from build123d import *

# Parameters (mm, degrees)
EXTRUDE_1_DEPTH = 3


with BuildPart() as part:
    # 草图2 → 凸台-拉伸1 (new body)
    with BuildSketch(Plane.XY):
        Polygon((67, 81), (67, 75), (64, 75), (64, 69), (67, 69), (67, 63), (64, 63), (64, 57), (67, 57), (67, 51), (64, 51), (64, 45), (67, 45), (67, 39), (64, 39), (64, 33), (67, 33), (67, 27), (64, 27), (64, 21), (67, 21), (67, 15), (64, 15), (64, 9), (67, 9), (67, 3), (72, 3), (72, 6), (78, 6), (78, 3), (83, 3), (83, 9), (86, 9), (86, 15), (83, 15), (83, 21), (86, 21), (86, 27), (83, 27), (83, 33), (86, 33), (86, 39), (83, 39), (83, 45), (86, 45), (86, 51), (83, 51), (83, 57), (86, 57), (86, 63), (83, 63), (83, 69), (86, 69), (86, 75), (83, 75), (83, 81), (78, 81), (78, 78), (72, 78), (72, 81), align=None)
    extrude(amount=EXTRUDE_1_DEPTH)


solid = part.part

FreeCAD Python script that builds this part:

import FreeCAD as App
import Part
import Sketcher

V = App.Vector

doc = App.newDocument("Part")
body = doc.addObject("PartDesign::Body", "Body")

sketch1 = body.newObject("Sketcher::SketchObject", "Sketch")
sketch1.AttachmentSupport = (doc.getObject("XY_Plane"), [""])
sketch1.MapMode = "FlatFace"
sketch1.addGeometry(Part.LineSegment(V(67, 81, 0), V(67, 75, 0)), False)
sketch1.addGeometry(Part.LineSegment(V(67, 75, 0), V(64, 75, 0)), False)
sketch1.addGeometry(Part.LineSegment(V(64, 75, 0), V(64, 69, 0)), False)
sketch1.addGeometry(Part.LineSegment(V(64, 69, 0), V(67, 69, 0)), False)
sketch1.addGeometry(Part.LineSegment(V(67, 69, 0), V(67, 63, 0)), False)
sketch1.addGeometry(Part.LineSegment(V(67, 63, 0), V(64, 63, 0)), False)
sketch1.addGeometry(Part.LineSegment(V(64, 63, 0), V(64, 57, 0)), False)
sketch1.addGeometry(Part.LineSegment(V(64, 57, 0), V(67, 57, 0)), False)
sketch1.addGeometry(Part.LineSegment(V(67, 57, 0), V(67, 51, 0)), False)
sketch1.addGeometry(Part.LineSegment(V(67, 51, 0), V(64, 51, 0)), False)
sketch1.addGeometry(Part.LineSegment(V(64, 51, 0), V(64, 45, 0)), False)
sketch1.addGeometry(Part.LineSegment(V(64, 45, 0), V(67, 45, 0)), False)
sketch1.addGeometry(Part.LineSegment(V(67, 45, 0), V(67, 39, 0)), False)
sketch1.addGeometry(Part.LineSegment(V(67, 39, 0), V(64, 39, 0)), False)
sketch1.addGeometry(Part.LineSegment(V(64, 39, 0), V(64, 33, 0)), False)
sketch1.addGeometry(Part.LineSegment(V(64, 33, 0), V(67, 33, 0)), False)
sketch1.addGeometry(Part.LineSegment(V(67, 33, 0), V(67, 27, 0)), False)
sketch1.addGeometry(Part.LineSegment(V(67, 27, 0), V(64, 27, 0)), False)
sketch1.addGeometry(Part.LineSegment(V(64, 27, 0), V(64, 21, 0)), False)
sketch1.addGeometry(Part.LineSegment(V(64, 21, 0), V(67, 21, 0)), False)
sketch1.addGeometry(Part.LineSegment(V(67, 21, 0), V(67, 15, 0)), False)
sketch1.addGeometry(Part.LineSegment(V(67, 15, 0), V(64, 15, 0)), False)
sketch1.addGeometry(Part.LineSegment(V(64, 15, 0), V(64, 9, 0)), False)
sketch1.addGeometry(Part.LineSegment(V(64, 9, 0), V(67, 9, 0)), False)
sketch1.addGeometry(Part.LineSegment(V(67, 9, 0), V(67, 3, 0)), False)
sketch1.addGeometry(Part.LineSegment(V(67, 3, 0), V(72, 3, 0)), False)
sketch1.addGeometry(Part.LineSegment(V(72, 3, 0), V(72, 6, 0)), False)
sketch1.addGeometry(Part.LineSegment(V(72, 6, 0), V(78, 6, 0)), False)
sketch1.addGeometry(Part.LineSegment(V(78, 6, 0), V(78, 3, 0)), False)
sketch1.addGeometry(Part.LineSegment(V(78, 3, 0), V(83, 3, 0)), False)
sketch1.addGeometry(Part.LineSegment(V(83, 3, 0), V(83, 9, 0)), False)
sketch1.addGeometry(Part.LineSegment(V(83, 9, 0), V(86, 9, 0)), False)
sketch1.addGeometry(Part.LineSegment(V(86, 9, 0), V(86, 15, 0)), False)
sketch1.addGeometry(Part.LineSegment(V(86, 15, 0), V(83, 15, 0)), False)
sketch1.addGeometry(Part.LineSegment(V(83, 15, 0), V(83, 21, 0)), False)
sketch1.addGeometry(Part.LineSegment(V(83, 21, 0), V(86, 21, 0)), False)
sketch1.addGeometry(Part.LineSegment(V(86, 21, 0), V(86, 27, 0)), False)
sketch1.addGeometry(Part.LineSegment(V(86, 27, 0), V(83, 27, 0)), False)
sketch1.addGeometry(Part.LineSegment(V(83, 27, 0), V(83, 33, 0)), False)
sketch1.addGeometry(Part.LineSegment(V(83, 33, 0), V(86, 33, 0)), False)
sketch1.addGeometry(Part.LineSegment(V(86, 33, 0), V(86, 39, 0)), False)
sketch1.addGeometry(Part.LineSegment(V(86, 39, 0), V(83, 39, 0)), False)
sketch1.addGeometry(Part.LineSegment(V(83, 39, 0), V(83, 45, 0)), False)
sketch1.addGeometry(Part.LineSegment(V(83, 45, 0), V(86, 45, 0)), False)
sketch1.addGeometry(Part.LineSegment(V(86, 45, 0), V(86, 51, 0)), False)
sketch1.addGeometry(Part.LineSegment(V(86, 51, 0), V(83, 51, 0)), False)
sketch1.addGeometry(Part.LineSegment(V(83, 51, 0), V(83, 57, 0)), False)
sketch1.addGeometry(Part.LineSegment(V(83, 57, 0), V(86, 57, 0)), False)
sketch1.addGeometry(Part.LineSegment(V(86, 57, 0), V(86, 63, 0)), False)
sketch1.addGeometry(Part.LineSegment(V(86, 63, 0), V(83, 63, 0)), False)
sketch1.addGeometry(Part.LineSegment(V(83, 63, 0), V(83, 69, 0)), False)
sketch1.addGeometry(Part.LineSegment(V(83, 69, 0), V(86, 69, 0)), False)
sketch1.addGeometry(Part.LineSegment(V(86, 69, 0), V(86, 75, 0)), False)
sketch1.addGeometry(Part.LineSegment(V(86, 75, 0), V(83, 75, 0)), False)
sketch1.addGeometry(Part.LineSegment(V(83, 75, 0), V(83, 81, 0)), False)
sketch1.addGeometry(Part.LineSegment(V(83, 81, 0), V(78, 81, 0)), False)
sketch1.addGeometry(Part.LineSegment(V(78, 81, 0), V(78, 78, 0)), False)
sketch1.addGeometry(Part.LineSegment(V(78, 78, 0), V(72, 78, 0)), False)
sketch1.addGeometry(Part.LineSegment(V(72, 78, 0), V(72, 81, 0)), False)
sketch1.addGeometry(Part.LineSegment(V(72, 81, 0), V(67, 81, 0)), False)
sketch1.addConstraint(Sketcher.Constraint("Coincident", 0, 2, 1, 1))
sketch1.addConstraint(Sketcher.Constraint("Coincident", 1, 2, 2, 1))
sketch1.addConstraint(Sketcher.Constraint("Coincident", 2, 2, 3, 1))
sketch1.addConstraint(Sketcher.Constraint("Coincident", 3, 2, 4, 1))
sketch1.addConstraint(Sketcher.Constraint("Coincident", 4, 2, 5, 1))
sketch1.addConstraint(Sketcher.Constraint("Coincident", 5, 2, 6, 1))
sketch1.addConstraint(Sketcher.Constraint("Coincident", 6, 2, 7, 1))
sketch1.addConstraint(Sketcher.Constraint("Coincident", 7, 2, 8, 1))
sketch1.addConstraint(Sketcher.Constraint("Coincident", 8, 2, 9, 1))
sketch1.addConstraint(Sketcher.Constraint("Coincident", 9, 2, 10, 1))
sketch1.addConstraint(Sketcher.Constraint("Coincident", 10, 2, 11, 1))
sketch1.addConstraint(Sketcher.Constraint("Coincident", 11, 2, 12, 1))
sketch1.addConstraint(Sketcher.Constraint("Coincident", 12, 2, 13, 1))
sketch1.addConstraint(Sketcher.Constraint("Coincident", 13, 2, 14, 1))
sketch1.addConstraint(Sketcher.Constraint("Coincident", 14, 2, 15, 1))
sketch1.addConstraint(Sketcher.Constraint("Coincident", 15, 2, 16, 1))
sketch1.addConstraint(Sketcher.Constraint("Coincident", 16, 2, 17, 1))
sketch1.addConstraint(Sketcher.Constraint("Coincident", 17, 2, 18, 1))
sketch1.addConstraint(Sketcher.Constraint("Coincident", 18, 2, 19, 1))
sketch1.addConstraint(Sketcher.Constraint("Coincident", 19, 2, 20, 1))
sketch1.addConstraint(Sketcher.Constraint("Coincident", 20, 2, 21, 1))
sketch1.addConstraint(Sketcher.Constraint("Coincident", 21, 2, 22, 1))
sketch1.addConstraint(Sketcher.Constraint("Coincident", 22, 2, 23, 1))
sketch1.addConstraint(Sketcher.Constraint("Coincident", 23, 2, 24, 1))
sketch1.addConstraint(Sketcher.Constraint("Coincident", 24, 2, 25, 1))
sketch1.addConstraint(Sketcher.Constraint("Coincident", 25, 2, 26, 1))
sketch1.addConstraint(Sketcher.Constraint("Coincident", 26, 2, 27, 1))
sketch1.addConstraint(Sketcher.Constraint("Coincident", 27, 2, 28, 1))
sketch1.addConstraint(Sketcher.Constraint("Coincident", 28, 2, 29, 1))
sketch1.addConstraint(Sketcher.Constraint("Coincident", 29, 2, 30, 1))
sketch1.addConstraint(Sketcher.Constraint("Coincident", 30, 2, 31, 1))
sketch1.addConstraint(Sketcher.Constraint("Coincident", 31, 2, 32, 1))
sketch1.addConstraint(Sketcher.Constraint("Coincident", 32, 2, 33, 1))
sketch1.addConstraint(Sketcher.Constraint("Coincident", 33, 2, 34, 1))
sketch1.addConstraint(Sketcher.Constraint("Coincident", 34, 2, 35, 1))
sketch1.addConstraint(Sketcher.Constraint("Coincident", 35, 2, 36, 1))
sketch1.addConstraint(Sketcher.Constraint("Coincident", 36, 2, 37, 1))
sketch1.addConstraint(Sketcher.Constraint("Coincident", 37, 2, 38, 1))
sketch1.addConstraint(Sketcher.Constraint("Coincident", 38, 2, 39, 1))
sketch1.addConstraint(Sketcher.Constraint("Coincident", 39, 2, 40, 1))
sketch1.addConstraint(Sketcher.Constraint("Coincident", 40, 2, 41, 1))
sketch1.addConstraint(Sketcher.Constraint("Coincident", 41, 2, 42, 1))
sketch1.addConstraint(Sketcher.Constraint("Coincident", 42, 2, 43, 1))
sketch1.addConstraint(Sketcher.Constraint("Coincident", 43, 2, 44, 1))
sketch1.addConstraint(Sketcher.Constraint("Coincident", 44, 2, 45, 1))
sketch1.addConstraint(Sketcher.Constraint("Coincident", 45, 2, 46, 1))
sketch1.addConstraint(Sketcher.Constraint("Coincident", 46, 2, 47, 1))
sketch1.addConstraint(Sketcher.Constraint("Coincident", 47, 2, 48, 1))
sketch1.addConstraint(Sketcher.Constraint("Coincident", 48, 2, 49, 1))
sketch1.addConstraint(Sketcher.Constraint("Coincident", 49, 2, 50, 1))
sketch1.addConstraint(Sketcher.Constraint("Coincident", 50, 2, 51, 1))
sketch1.addConstraint(Sketcher.Constraint("Coincident", 51, 2, 52, 1))
sketch1.addConstraint(Sketcher.Constraint("Coincident", 52, 2, 53, 1))
sketch1.addConstraint(Sketcher.Constraint("Coincident", 53, 2, 54, 1))
sketch1.addConstraint(Sketcher.Constraint("Coincident", 54, 2, 55, 1))
sketch1.addConstraint(Sketcher.Constraint("Coincident", 55, 2, 56, 1))
sketch1.addConstraint(Sketcher.Constraint("Coincident", 56, 2, 57, 1))
sketch1.addConstraint(Sketcher.Constraint("Coincident", 57, 2, 58, 1))
sketch1.addConstraint(Sketcher.Constraint("Coincident", 58, 2, 59, 1))
sketch1.addConstraint(Sketcher.Constraint("Coincident", 59, 2, 0, 1))
sketch1.addConstraint(Sketcher.Constraint("Vertical", 0))
sketch1.addConstraint(Sketcher.Constraint("Horizontal", 1))
sketch1.addConstraint(Sketcher.Constraint("Vertical", 2))
sketch1.addConstraint(Sketcher.Constraint("Horizontal", 3))
sketch1.addConstraint(Sketcher.Constraint("Vertical", 4))
sketch1.addConstraint(Sketcher.Constraint("Horizontal", 5))
sketch1.addConstraint(Sketcher.Constraint("Vertical", 6))
sketch1.addConstraint(Sketcher.Constraint("Horizontal", 7))
sketch1.addConstraint(Sketcher.Constraint("Vertical", 8))
sketch1.addConstraint(Sketcher.Constraint("Horizontal", 9))
sketch1.addConstraint(Sketcher.Constraint("Vertical", 10))
sketch1.addConstraint(Sketcher.Constraint("Horizontal", 11))
sketch1.addConstraint(Sketcher.Constraint("Vertical", 12))
sketch1.addConstraint(Sketcher.Constraint("Horizontal", 13))
sketch1.addConstraint(Sketcher.Constraint("Vertical", 14))
sketch1.addConstraint(Sketcher.Constraint("Horizontal", 15))
sketch1.addConstraint(Sketcher.Constraint("Vertical", 16))
sketch1.addConstraint(Sketcher.Constraint("Horizontal", 17))
sketch1.addConstraint(Sketcher.Constraint("Vertical", 18))
sketch1.addConstraint(Sketcher.Constraint("Horizontal", 19))
sketch1.addConstraint(Sketcher.Constraint("Vertical", 20))
sketch1.addConstraint(Sketcher.Constraint("Horizontal", 21))
sketch1.addConstraint(Sketcher.Constraint("Vertical", 22))
sketch1.addConstraint(Sketcher.Constraint("Horizontal", 23))
sketch1.addConstraint(Sketcher.Constraint("Vertical", 24))
sketch1.addConstraint(Sketcher.Constraint("Horizontal", 25))
sketch1.addConstraint(Sketcher.Constraint("Vertical", 26))
sketch1.addConstraint(Sketcher.Constraint("Horizontal", 27))
sketch1.addConstraint(Sketcher.Constraint("Vertical", 28))
sketch1.addConstraint(Sketcher.Constraint("Horizontal", 29))
sketch1.addConstraint(Sketcher.Constraint("Vertical", 30))
sketch1.addConstraint(Sketcher.Constraint("Horizontal", 31))
sketch1.addConstraint(Sketcher.Constraint("Vertical", 32))
sketch1.addConstraint(Sketcher.Constraint("Horizontal", 33))
sketch1.addConstraint(Sketcher.Constraint("Vertical", 34))
sketch1.addConstraint(Sketcher.Constraint("Horizontal", 35))
sketch1.addConstraint(Sketcher.Constraint("Vertical", 36))
sketch1.addConstraint(Sketcher.Constraint("Horizontal", 37))
sketch1.addConstraint(Sketcher.Constraint("Vertical", 38))
sketch1.addConstraint(Sketcher.Constraint("Horizontal", 39))
sketch1.addConstraint(Sketcher.Constraint("Vertical", 40))
sketch1.addConstraint(Sketcher.Constraint("Horizontal", 41))
sketch1.addConstraint(Sketcher.Constraint("Vertical", 42))
sketch1.addConstraint(Sketcher.Constraint("Horizontal", 43))
sketch1.addConstraint(Sketcher.Constraint("Vertical", 44))
sketch1.addConstraint(Sketcher.Constraint("Horizontal", 45))
sketch1.addConstraint(Sketcher.Constraint("Vertical", 46))
sketch1.addConstraint(Sketcher.Constraint("Horizontal", 47))
sketch1.addConstraint(Sketcher.Constraint("Vertical", 48))
sketch1.addConstraint(Sketcher.Constraint("Horizontal", 49))
sketch1.addConstraint(Sketcher.Constraint("Vertical", 50))
sketch1.addConstraint(Sketcher.Constraint("Horizontal", 51))
sketch1.addConstraint(Sketcher.Constraint("Vertical", 52))
sketch1.addConstraint(Sketcher.Constraint("Horizontal", 53))
sketch1.addConstraint(Sketcher.Constraint("Vertical", 54))
sketch1.addConstraint(Sketcher.Constraint("Horizontal", 55))
sketch1.addConstraint(Sketcher.Constraint("Vertical", 56))
sketch1.addConstraint(Sketcher.Constraint("Horizontal", 57))
sketch1.addConstraint(Sketcher.Constraint("Vertical", 58))
sketch1.addConstraint(Sketcher.Constraint("Horizontal", 59))
sketch1.addConstraint(Sketcher.Constraint("Horizontal", 25, 2, 28, 2))
sketch1.addConstraint(Sketcher.Constraint("Horizontal", 23, 2, 30, 2))
sketch1.addConstraint(Sketcher.Constraint("Horizontal", 21, 2, 32, 2))
sketch1.addConstraint(Sketcher.Constraint("Horizontal", 19, 2, 34, 2))
sketch1.addConstraint(Sketcher.Constraint("Horizontal", 17, 2, 36, 2))
sketch1.addConstraint(Sketcher.Constraint("Horizontal", 15, 2, 38, 2))
sketch1.addConstraint(Sketcher.Constraint("Horizontal", 13, 2, 40, 2))
sketch1.addConstraint(Sketcher.Constraint("Horizontal", 11, 2, 42, 2))
sketch1.addConstraint(Sketcher.Constraint("Horizontal", 9, 2, 44, 2))
sketch1.addConstraint(Sketcher.Constraint("Horizontal", 7, 2, 46, 2))
sketch1.addConstraint(Sketcher.Constraint("Horizontal", 5, 2, 48, 2))
sketch1.addConstraint(Sketcher.Constraint("Horizontal", 3, 2, 50, 2))
sketch1.addConstraint(Sketcher.Constraint("Horizontal", 1, 2, 52, 2))
sketch1.addConstraint(Sketcher.Constraint("Horizontal", 55, 2, 58, 2))
sketch1.addConstraint(Sketcher.Constraint("Vertical", 0, 2, 3, 2))
sketch1.addConstraint(Sketcher.Constraint("Vertical", 2, 2, 5, 2))
sketch1.addConstraint(Sketcher.Constraint("Vertical", 4, 2, 7, 2))
sketch1.addConstraint(Sketcher.Constraint("Vertical", 6, 2, 9, 2))
sketch1.addConstraint(Sketcher.Constraint("Vertical", 8, 2, 11, 2))
sketch1.addConstraint(Sketcher.Constraint("Vertical", 10, 2, 13, 2))
sketch1.addConstraint(Sketcher.Constraint("Vertical", 12, 2, 15, 2))
sketch1.addConstraint(Sketcher.Constraint("Vertical", 14, 2, 17, 2))
sketch1.addConstraint(Sketcher.Constraint("Vertical", 16, 2, 19, 2))
sketch1.addConstraint(Sketcher.Constraint("Vertical", 18, 2, 21, 2))
sketch1.addConstraint(Sketcher.Constraint("Vertical", 20, 2, 23, 2))
sketch1.addConstraint(Sketcher.Constraint("Vertical", 30, 2, 33, 2))
sketch1.addConstraint(Sketcher.Constraint("Vertical", 32, 2, 35, 2))
sketch1.addConstraint(Sketcher.Constraint("Vertical", 34, 2, 37, 2))
sketch1.addConstraint(Sketcher.Constraint("Vertical", 36, 2, 39, 2))
sketch1.addConstraint(Sketcher.Constraint("Vertical", 38, 2, 41, 2))
sketch1.addConstraint(Sketcher.Constraint("Vertical", 40, 2, 43, 2))
sketch1.addConstraint(Sketcher.Constraint("Vertical", 42, 2, 45, 2))
sketch1.addConstraint(Sketcher.Constraint("Vertical", 44, 2, 47, 2))
sketch1.addConstraint(Sketcher.Constraint("Vertical", 46, 2, 49, 2))
sketch1.addConstraint(Sketcher.Constraint("Vertical", 48, 2, 51, 2))
sketch1.addConstraint(Sketcher.Constraint("Vertical", 50, 2, 53, 2))
sketch1.addConstraint(Sketcher.Constraint("Vertical", 28, 2, 55, 2))
sketch1.addConstraint(Sketcher.Constraint("Vertical", 26, 2, 57, 2))
sketch1.addConstraint(Sketcher.Constraint("Equal", 25, 29))
sketch1.addConstraint(Sketcher.Constraint("Equal", 23, 31))
sketch1.addConstraint(Sketcher.Constraint("Equal", 57, 0))
sketch1.addConstraint(Sketcher.Constraint("Equal", 0, 2))
sketch1.addConstraint(Sketcher.Constraint("Equal", 2, 4))
sketch1.addConstraint(Sketcher.Constraint("Equal", 4, 6))
sketch1.addConstraint(Sketcher.Constraint("Equal", 6, 8))
sketch1.addConstraint(Sketcher.Constraint("Equal", 8, 10))
sketch1.addConstraint(Sketcher.Constraint("Equal", 10, 12))
sketch1.addConstraint(Sketcher.Constraint("Equal", 12, 14))
sketch1.addConstraint(Sketcher.Constraint("Equal", 14, 16))
sketch1.addConstraint(Sketcher.Constraint("Equal", 16, 18))
sketch1.addConstraint(Sketcher.Constraint("Equal", 18, 20))
sketch1.addConstraint(Sketcher.Constraint("Equal", 20, 22))
sketch1.addConstraint(Sketcher.Constraint("Equal", 22, 24))
sketch1.addConstraint(Sketcher.Constraint("Equal", 53, 26))
sketch1.addConstraint(Sketcher.Constraint("Equal", 28, 56))
sketch1.addConstraint(Sketcher.Constraint("DistanceX", 1, 2, 1, 1, 3.0))
sketch1.addConstraint(Sketcher.Constraint("DistanceX", 25, 1, 25, 2, 5.0))
sketch1.addConstraint(Sketcher.Constraint("DistanceX", 27, 1, 27, 2, 6.0))
sketch1.addConstraint(Sketcher.Constraint("DistanceX", -1, 1, 0, 2, 67.0))
sketch1.addConstraint(Sketcher.Constraint("DistanceY", -1, 1, 0, 2, 75.0))
pad1 = body.newObject("PartDesign::Pad", "Pad")
pad1.Profile = sketch1
pad1.Length = 3

doc.recompute()
